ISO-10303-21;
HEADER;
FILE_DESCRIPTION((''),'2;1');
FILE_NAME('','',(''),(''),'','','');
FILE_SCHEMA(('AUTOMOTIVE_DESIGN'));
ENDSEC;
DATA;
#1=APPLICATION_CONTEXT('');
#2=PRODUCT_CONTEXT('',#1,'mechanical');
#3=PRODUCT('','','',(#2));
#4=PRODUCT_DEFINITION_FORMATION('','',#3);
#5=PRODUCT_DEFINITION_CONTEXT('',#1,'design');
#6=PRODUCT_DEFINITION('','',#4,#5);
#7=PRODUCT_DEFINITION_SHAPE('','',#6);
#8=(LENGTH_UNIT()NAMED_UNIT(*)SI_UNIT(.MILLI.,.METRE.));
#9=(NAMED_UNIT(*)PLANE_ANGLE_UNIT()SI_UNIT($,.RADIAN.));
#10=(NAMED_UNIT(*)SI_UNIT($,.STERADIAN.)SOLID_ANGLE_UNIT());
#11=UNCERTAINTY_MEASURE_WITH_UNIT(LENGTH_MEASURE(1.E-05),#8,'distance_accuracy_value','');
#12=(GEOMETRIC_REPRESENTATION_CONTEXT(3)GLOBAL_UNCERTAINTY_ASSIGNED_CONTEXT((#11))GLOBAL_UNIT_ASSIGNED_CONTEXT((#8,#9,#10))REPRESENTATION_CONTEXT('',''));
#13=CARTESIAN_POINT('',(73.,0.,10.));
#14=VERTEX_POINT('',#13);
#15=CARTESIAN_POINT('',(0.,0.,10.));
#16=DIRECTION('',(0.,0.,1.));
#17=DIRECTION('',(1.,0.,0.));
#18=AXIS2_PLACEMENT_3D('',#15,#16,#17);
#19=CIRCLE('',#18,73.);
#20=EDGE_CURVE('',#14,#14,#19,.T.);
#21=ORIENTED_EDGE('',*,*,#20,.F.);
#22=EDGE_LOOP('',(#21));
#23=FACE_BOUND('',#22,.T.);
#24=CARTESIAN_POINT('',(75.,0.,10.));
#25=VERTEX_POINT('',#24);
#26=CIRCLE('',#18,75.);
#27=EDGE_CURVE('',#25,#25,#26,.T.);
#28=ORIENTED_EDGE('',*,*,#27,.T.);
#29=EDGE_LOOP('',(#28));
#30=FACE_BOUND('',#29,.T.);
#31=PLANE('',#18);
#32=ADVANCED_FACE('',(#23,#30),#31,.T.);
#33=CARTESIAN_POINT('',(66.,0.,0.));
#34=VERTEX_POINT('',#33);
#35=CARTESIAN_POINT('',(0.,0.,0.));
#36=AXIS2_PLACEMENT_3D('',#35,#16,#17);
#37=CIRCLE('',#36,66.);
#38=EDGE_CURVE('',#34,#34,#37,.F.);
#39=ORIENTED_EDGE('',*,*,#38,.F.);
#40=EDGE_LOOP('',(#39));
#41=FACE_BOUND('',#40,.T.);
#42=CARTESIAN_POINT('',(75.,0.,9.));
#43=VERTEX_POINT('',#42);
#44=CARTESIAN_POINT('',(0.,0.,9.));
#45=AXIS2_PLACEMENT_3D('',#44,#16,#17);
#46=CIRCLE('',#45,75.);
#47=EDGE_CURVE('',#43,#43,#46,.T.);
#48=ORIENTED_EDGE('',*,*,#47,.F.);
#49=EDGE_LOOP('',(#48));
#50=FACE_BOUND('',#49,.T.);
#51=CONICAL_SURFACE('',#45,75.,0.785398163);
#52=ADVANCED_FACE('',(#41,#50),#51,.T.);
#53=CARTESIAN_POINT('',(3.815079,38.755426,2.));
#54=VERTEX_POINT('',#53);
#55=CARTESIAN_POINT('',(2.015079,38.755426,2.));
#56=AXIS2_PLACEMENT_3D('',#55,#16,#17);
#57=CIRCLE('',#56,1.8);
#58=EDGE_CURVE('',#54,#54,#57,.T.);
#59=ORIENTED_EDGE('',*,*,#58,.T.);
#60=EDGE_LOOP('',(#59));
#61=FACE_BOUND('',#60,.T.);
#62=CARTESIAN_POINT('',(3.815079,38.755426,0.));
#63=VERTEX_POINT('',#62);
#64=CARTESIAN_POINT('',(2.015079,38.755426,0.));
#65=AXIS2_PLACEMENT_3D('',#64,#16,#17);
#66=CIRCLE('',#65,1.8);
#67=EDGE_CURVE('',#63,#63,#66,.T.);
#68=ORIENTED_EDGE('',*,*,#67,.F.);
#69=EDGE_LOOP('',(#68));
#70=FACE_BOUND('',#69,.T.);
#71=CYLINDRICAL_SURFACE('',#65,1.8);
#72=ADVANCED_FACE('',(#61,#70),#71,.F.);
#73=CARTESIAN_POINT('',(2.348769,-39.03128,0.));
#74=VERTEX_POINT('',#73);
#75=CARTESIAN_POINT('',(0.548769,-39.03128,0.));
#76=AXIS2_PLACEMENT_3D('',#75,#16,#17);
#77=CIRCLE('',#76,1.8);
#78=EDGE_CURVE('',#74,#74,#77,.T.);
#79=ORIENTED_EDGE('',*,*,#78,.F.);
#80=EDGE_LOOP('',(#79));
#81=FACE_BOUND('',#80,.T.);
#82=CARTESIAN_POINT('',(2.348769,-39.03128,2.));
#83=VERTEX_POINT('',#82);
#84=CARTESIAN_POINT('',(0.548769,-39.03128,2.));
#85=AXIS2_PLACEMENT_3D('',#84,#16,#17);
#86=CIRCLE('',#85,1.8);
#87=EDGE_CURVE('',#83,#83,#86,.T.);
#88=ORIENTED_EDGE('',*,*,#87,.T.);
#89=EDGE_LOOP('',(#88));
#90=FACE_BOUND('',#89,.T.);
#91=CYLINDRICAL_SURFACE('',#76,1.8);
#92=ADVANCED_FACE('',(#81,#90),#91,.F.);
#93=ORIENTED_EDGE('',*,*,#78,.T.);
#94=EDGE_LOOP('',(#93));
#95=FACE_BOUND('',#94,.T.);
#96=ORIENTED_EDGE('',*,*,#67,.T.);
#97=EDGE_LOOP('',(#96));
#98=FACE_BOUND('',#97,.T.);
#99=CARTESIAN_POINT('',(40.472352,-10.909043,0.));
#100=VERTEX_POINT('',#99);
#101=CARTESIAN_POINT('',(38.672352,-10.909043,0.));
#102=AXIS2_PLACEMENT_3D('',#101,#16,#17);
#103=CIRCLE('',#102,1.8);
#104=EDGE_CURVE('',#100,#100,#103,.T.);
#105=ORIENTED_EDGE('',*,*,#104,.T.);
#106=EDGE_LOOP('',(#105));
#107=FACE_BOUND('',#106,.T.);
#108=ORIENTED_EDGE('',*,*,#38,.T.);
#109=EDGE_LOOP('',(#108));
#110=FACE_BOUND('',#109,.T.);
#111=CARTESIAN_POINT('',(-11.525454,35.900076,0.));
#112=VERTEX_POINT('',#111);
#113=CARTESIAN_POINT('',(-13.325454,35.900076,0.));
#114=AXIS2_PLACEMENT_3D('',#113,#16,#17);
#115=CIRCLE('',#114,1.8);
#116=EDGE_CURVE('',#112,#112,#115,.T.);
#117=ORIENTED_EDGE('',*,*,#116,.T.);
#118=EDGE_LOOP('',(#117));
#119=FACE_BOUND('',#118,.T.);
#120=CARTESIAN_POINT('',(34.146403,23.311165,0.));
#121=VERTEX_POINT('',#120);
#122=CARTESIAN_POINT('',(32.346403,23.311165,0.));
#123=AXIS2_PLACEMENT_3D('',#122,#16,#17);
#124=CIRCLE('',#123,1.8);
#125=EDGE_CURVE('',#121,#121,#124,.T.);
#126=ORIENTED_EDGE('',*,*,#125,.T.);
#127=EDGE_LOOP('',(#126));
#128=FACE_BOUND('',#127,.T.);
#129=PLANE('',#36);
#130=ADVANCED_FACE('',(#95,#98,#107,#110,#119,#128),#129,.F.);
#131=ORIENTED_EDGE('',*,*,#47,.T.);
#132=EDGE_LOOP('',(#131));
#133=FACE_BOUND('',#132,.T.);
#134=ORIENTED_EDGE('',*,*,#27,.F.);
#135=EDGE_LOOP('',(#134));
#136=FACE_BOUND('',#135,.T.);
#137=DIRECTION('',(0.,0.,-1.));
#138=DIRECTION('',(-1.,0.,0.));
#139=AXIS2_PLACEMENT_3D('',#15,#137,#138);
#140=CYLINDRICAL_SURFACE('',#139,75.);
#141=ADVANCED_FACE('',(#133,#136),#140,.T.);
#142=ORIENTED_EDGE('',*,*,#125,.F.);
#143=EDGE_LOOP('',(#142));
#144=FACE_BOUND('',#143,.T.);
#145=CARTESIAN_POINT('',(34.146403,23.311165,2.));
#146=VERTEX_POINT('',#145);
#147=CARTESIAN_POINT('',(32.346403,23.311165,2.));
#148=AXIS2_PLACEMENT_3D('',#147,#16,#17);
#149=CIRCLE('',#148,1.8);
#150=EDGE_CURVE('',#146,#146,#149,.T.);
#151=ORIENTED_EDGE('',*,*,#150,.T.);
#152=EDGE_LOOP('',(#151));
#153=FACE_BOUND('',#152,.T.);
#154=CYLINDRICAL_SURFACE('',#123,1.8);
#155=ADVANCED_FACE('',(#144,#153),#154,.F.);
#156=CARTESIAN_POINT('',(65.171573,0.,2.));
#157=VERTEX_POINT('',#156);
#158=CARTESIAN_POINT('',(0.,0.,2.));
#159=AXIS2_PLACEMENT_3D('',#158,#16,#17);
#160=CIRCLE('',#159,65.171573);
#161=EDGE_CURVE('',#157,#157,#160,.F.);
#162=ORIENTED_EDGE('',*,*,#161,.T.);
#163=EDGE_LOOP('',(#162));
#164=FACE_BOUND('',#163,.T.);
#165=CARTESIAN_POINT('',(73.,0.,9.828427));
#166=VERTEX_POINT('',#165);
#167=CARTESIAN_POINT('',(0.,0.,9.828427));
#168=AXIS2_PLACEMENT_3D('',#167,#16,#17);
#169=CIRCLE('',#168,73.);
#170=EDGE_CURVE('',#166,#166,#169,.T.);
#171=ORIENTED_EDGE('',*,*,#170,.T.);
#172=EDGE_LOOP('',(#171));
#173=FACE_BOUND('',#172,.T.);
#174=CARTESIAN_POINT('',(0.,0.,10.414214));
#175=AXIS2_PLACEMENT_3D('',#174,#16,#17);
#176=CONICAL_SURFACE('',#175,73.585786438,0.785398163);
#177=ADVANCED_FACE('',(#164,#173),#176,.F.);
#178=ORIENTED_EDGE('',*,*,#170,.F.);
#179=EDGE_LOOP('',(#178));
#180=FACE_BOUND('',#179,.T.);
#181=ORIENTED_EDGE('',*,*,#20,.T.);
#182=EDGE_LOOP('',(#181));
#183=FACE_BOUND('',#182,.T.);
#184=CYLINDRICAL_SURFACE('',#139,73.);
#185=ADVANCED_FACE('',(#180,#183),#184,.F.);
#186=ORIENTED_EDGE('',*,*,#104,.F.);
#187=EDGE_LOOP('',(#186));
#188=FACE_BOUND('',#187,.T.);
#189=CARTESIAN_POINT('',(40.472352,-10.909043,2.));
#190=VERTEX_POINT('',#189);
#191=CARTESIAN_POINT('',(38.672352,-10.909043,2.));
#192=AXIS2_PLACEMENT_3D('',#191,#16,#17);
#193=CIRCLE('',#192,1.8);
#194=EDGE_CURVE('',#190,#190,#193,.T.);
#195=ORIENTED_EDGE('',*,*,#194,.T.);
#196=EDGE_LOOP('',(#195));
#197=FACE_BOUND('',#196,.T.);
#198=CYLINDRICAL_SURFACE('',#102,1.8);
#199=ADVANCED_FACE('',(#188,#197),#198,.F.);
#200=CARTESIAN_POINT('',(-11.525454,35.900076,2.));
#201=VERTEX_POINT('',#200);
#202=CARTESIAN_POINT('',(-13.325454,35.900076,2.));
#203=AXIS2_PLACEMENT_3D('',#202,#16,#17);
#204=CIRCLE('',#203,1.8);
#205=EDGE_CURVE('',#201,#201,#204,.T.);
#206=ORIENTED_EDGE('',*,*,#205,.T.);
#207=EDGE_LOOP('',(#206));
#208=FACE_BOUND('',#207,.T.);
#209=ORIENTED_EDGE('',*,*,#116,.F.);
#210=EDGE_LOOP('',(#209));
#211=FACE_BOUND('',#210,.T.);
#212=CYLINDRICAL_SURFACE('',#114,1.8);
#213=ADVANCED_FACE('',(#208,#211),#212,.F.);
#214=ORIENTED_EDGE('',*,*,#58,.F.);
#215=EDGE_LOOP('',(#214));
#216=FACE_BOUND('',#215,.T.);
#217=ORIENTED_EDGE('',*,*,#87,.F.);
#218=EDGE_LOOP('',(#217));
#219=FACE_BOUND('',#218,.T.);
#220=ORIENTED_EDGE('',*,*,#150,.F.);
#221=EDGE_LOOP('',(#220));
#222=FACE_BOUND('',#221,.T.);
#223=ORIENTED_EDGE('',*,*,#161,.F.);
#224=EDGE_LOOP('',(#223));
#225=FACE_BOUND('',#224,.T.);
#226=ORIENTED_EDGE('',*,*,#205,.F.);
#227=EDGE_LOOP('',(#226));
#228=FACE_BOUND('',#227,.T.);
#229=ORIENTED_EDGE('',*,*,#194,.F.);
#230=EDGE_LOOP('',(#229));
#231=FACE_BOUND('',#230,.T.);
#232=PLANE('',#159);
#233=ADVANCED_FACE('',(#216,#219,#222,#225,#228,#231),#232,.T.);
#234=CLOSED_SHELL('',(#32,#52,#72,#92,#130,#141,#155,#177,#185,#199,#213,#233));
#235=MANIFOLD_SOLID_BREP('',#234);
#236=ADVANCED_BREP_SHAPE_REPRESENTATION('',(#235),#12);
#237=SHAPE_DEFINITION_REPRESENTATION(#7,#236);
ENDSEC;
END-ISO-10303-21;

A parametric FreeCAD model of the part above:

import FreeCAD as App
import Part
import Sketcher

V = App.Vector


def edges_at(feature, points):
    """Names of the edges that pass closest to the given points."""
    edges = feature.Shape.Edges
    near = lambda p: min(range(len(edges)), key=lambda i: edges[i].distToShape(Part.Vertex(*p))[0])
    return sorted({f"Edge{near(p) + 1}" for p in points})


def faces_at(feature, points):
    """Names of the faces that lie closest to the given points."""
    faces = feature.Shape.Faces
    near = lambda p: min(range(len(faces)), key=lambda i: faces[i].distToShape(Part.Vertex(*p))[0])
    return sorted({f"Face{near(p) + 1}" for p in points})

doc = App.newDocument("Part")
body = doc.addObject("PartDesign::Body", "Body")

# Sketch on XY plane
sketch1 = doc.addObject("Sketcher::SketchObject", "Sketch")
body.addObject(sketch1)
sketch1.AttachmentSupport = (doc.XY_Plane, [""])
sketch1.MapMode = "FlatFace"
sketch1.addGeometry(Part.Circle(V(0, 0, 0), V(0, 0, 1), 75), False)
sketch1.addConstraint([
    Sketcher.Constraint("Coincident", 0, 3, -1, 1),
    Sketcher.Constraint("Diameter", 0, 150.0),
])
pad1 = doc.addObject("PartDesign::Pad", "Pad")
body.addObject(pad1)
pad1.Profile = sketch1
pad1.Length = 10
doc.recompute()

chamfer = doc.addObject("PartDesign::Chamfer", "Chamfer")
body.addObject(chamfer)
chamfer.Base = (pad1, edges_at(pad1, [(-75, 0, 0)]))
chamfer.Size = 9
doc.recompute()

thickness = doc.addObject("PartDesign::Thickness", "Thickness")
body.addObject(thickness)
thickness.Base = (chamfer, faces_at(chamfer, [(0, 0, 10)]))
thickness.Value = 2
thickness.Reversed = True
thickness.Join = "Intersection"

# Sketch on XY plane
sketch2 = doc.addObject("Sketcher::SketchObject", "Sketch001")
body.addObject(sketch2)
sketch2.AttachmentSupport = (doc.XY_Plane, [""])
sketch2.MapMode = "FlatFace"
sketch2.AttachmentOffset = App.Placement(V(0, 0, 2), App.Rotation())
sketch2.addGeometry([
    Part.Circle(V(2, 38.8, 0), V(0, 0, 1), 1.8),  # 0
    Part.Circle(V(-13.3, 35.9, 0), V(0, 0, 1), 1.8),  # 1
    Part.Circle(V(0.5, -39, 0), V(0, 0, 1), 1.8),  # 2
    Part.Circle(V(38.7, -10.9, 0), V(0, 0, 1), 1.8),  # 3
    Part.Circle(V(32.3, 23.3, 0), V(0, 0, 1), 1.8),  # 4
], False)
sketch2.addConstraint([
    Sketcher.Constraint("Equal", 0, 1),
    Sketcher.Constraint("Equal", 1, 2),
    Sketcher.Constraint("Equal", 2, 3),
    Sketcher.Constraint("Equal", 3, 4),
    Sketcher.Constraint("Diameter", 0, 3.6),
    Sketcher.Constraint("DistanceX", -1, 1, 0, 3, 2.015079),
    Sketcher.Constraint("DistanceX", -1, 1, 2, 3, 0.548769),
    Sketcher.Constraint("DistanceY", 2, 3, -1, 1, 39.03128),
    Sketcher.Constraint("DistanceX", -1, 1, 3, 3, 38.672352),
    Sketcher.Constraint("DistanceY", 1, 3, 0, 3, 2.85535),
    Sketcher.Constraint("DistanceY", 3, 3, 0, 3, 49.66447),
    Sketcher.Constraint("DistanceY", 4, 3, 0, 3, 15.444262),
    Sketcher.Constraint("DistanceX", 4, 3, 3, 3, 6.325949),
    Sketcher.Constraint("DistanceY", -1, 1, 0, 3, 38.755426),
    Sketcher.Constraint("DistanceX", 1, 3, -1, 1, 13.325454),
])
pocket1 = doc.addObject("PartDesign::Pocket", "Pocket")
body.addObject(pocket1)
pocket1.Profile = sketch2
pocket1.Type = "ThroughAll"

doc.recompute()
